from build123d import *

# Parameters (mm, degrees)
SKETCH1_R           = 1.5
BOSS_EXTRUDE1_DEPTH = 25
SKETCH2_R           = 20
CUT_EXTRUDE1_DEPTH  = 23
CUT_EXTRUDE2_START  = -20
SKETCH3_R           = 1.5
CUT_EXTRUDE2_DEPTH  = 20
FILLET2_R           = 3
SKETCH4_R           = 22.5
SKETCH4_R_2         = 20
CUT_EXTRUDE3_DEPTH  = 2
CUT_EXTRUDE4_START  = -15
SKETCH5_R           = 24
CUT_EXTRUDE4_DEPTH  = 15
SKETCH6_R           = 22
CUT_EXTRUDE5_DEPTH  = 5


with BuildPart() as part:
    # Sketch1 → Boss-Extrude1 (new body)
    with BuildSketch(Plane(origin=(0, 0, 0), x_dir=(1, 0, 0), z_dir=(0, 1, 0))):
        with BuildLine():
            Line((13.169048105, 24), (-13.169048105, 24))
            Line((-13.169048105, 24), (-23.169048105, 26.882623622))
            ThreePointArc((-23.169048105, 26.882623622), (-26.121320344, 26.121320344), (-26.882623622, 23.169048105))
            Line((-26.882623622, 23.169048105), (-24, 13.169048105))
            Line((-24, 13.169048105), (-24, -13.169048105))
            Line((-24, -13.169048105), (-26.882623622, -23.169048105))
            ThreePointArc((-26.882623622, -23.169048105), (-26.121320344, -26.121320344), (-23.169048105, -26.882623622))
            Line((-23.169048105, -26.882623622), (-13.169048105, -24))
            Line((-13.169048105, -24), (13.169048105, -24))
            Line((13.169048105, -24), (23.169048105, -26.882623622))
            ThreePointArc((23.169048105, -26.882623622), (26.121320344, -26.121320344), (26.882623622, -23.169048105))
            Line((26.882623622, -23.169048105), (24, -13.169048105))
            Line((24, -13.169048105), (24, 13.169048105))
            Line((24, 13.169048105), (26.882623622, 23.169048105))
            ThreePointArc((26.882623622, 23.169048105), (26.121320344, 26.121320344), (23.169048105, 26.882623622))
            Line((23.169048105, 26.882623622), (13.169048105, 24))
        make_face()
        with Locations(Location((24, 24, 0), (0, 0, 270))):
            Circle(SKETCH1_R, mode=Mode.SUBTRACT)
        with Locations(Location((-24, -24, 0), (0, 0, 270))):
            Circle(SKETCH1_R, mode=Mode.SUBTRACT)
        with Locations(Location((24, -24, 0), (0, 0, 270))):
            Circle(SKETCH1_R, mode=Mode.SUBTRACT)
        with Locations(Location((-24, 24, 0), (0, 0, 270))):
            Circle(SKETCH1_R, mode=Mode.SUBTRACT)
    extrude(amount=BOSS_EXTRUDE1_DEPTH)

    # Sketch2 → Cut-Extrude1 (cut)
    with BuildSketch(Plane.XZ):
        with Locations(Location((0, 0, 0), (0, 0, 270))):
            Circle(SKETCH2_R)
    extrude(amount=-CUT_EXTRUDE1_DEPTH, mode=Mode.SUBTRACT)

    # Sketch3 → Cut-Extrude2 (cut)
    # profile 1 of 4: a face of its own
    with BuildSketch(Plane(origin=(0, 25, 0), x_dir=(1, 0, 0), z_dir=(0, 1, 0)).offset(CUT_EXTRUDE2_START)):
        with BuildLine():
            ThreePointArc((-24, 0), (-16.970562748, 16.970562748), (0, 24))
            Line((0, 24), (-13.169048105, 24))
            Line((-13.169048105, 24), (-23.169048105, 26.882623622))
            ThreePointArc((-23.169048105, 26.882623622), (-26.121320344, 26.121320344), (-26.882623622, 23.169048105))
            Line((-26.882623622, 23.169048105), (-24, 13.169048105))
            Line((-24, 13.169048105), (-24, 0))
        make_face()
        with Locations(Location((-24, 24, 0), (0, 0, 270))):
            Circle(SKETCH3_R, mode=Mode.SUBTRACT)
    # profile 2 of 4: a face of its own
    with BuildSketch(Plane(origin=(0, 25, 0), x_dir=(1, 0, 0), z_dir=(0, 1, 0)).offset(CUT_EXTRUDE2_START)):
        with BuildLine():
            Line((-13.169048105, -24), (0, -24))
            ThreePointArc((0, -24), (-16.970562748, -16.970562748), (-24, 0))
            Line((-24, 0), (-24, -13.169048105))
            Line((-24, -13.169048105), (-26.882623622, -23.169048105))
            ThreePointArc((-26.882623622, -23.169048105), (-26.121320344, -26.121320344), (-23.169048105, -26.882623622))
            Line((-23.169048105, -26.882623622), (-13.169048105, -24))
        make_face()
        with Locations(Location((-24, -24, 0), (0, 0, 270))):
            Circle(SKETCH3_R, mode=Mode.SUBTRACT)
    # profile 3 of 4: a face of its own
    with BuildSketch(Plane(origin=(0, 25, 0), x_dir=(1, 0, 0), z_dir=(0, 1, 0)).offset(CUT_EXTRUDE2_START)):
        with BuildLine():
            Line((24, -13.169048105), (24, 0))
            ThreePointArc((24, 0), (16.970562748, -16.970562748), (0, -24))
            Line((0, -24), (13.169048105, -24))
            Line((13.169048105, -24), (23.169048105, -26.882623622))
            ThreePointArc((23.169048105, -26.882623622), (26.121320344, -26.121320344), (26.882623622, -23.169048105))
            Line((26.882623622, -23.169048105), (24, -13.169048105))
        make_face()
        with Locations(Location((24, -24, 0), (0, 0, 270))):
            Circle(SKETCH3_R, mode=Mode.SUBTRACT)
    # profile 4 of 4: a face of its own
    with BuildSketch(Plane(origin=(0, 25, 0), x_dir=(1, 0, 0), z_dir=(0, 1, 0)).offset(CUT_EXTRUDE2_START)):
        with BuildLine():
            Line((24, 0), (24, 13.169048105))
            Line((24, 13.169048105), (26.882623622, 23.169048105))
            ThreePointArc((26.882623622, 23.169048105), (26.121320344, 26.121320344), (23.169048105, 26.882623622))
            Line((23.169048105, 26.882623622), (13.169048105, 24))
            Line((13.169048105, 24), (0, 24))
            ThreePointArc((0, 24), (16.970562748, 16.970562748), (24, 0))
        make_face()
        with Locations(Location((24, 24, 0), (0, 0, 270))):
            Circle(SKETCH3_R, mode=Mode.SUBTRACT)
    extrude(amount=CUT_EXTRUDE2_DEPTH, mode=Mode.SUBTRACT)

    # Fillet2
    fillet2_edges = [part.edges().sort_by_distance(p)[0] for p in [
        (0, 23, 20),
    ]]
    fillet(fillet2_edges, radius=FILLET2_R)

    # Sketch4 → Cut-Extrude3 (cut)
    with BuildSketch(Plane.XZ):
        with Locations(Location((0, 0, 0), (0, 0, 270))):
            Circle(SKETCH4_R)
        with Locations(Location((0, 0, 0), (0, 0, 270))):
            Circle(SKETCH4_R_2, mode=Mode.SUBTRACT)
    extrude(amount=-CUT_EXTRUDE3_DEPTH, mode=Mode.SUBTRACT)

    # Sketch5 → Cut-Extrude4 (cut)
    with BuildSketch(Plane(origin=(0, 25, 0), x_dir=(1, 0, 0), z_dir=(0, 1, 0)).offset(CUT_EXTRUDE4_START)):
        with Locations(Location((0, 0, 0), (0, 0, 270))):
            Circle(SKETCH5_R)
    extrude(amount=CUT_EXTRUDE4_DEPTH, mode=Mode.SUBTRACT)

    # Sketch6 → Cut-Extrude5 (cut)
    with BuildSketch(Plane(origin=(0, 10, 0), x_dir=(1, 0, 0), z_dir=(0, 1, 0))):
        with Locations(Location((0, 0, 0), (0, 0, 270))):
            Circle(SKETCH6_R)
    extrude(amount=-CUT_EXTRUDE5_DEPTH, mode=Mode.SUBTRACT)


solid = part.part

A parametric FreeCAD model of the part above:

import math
import FreeCAD as App
import Part
import Sketcher

V = App.Vector
Q = App.Units.Quantity


def edges_at(feature, points):
    """Names of the edges that pass closest to the given points."""
    edges = feature.Shape.Edges
    near = lambda p: min(range(len(edges)), key=lambda i: edges[i].distToShape(Part.Vertex(*p))[0])
    return sorted({f"Edge{near(p) + 1}" for p in points})

doc = App.newDocument("Part")
params = doc.addObject("Spreadsheet::Sheet", "Params")
for row, (alias, value) in enumerate([
    ("sketch1_diameter", "3 mm"),
    ("sketch1_radius", "3 mm"),
    ("pad1_length", "25 mm"),
    ("sketch2_diameter", "40 mm"),
    ("pocket1_length", "23 mm"),
    ("sketch3_diameter", "3 mm"),
    ("sketch3_radius", "24 mm"),
    ("sketch3_radius2", "3 mm"),
    ("pocket2_length", "20 mm"),
    ("fillet_radius", "3 mm"),
    ("sketch4_diameter", "45 mm"),
    ("sketch4_diameter2", "40 mm"),
    ("pocket3_length", "2 mm"),
    ("sketch5_diameter", "48 mm"),
    ("pocket4_length", "15 mm"),
    ("sketch6_diameter", "44 mm"),
    ("pocket5_length", "5 mm"),
], start=1):
    params.set(f"A{row}", alias)
    params.set(f"B{row}", "=" + value)
    params.setAlias(f"B{row}", alias)

body = doc.addObject("PartDesign::Body", "Body")

sketch1 = body.newObject("Sketcher::SketchObject", "Sketch")
sketch1.AttachmentSupport = (doc.getObject("XZ_Plane"), [""])
sketch1.MapMode = "FlatFace"
sketch1.addGeometry([
    Part.LineSegment(V(13.169048, -24, 0), V(-13.169048, -24, 0)),
    Part.LineSegment(V(-13.169048, -24, 0), V(-23.169048, -26.882624, 0)),
    Part.ArcOfCircle(Part.Circle(V(-24, -24, 0), V(0, 0, 1), 3), math.radians(163.919719), math.radians(286.080281)),
    Part.LineSegment(V(-26.882624, -23.169048, 0), V(-24, -13.169048, 0)),
    Part.LineSegment(V(-24, -13.169048, 0), V(-24, 13.169048, 0)),
    Part.LineSegment(V(-24, 13.169048, 0), V(-26.882624, 23.169048, 0)),
    Part.ArcOfCircle(Part.Circle(V(-24, 24, 0), V(0, 0, 1), 3), math.radians(73.919719), math.radians(196.080281)),
    Part.LineSegment(V(-23.169048, 26.882624, 0), V(-13.169048, 24, 0)),
    Part.LineSegment(V(-13.169048, 24, 0), V(13.169048, 24, 0)),
    Part.LineSegment(V(13.169048, 24, 0), V(23.169048, 26.882624, 0)),
    Part.ArcOfCircle(Part.Circle(V(24, 24, 0), V(0, 0, 1), 3), math.radians(-16.080281), math.radians(106.080281)),
    Part.LineSegment(V(26.882624, 23.169048, 0), V(24, 13.169048, 0)),
    Part.LineSegment(V(24, 13.169048, 0), V(24, -13.169048, 0)),
    Part.LineSegment(V(24, -13.169048, 0), V(26.882624, -23.169048, 0)),
    Part.ArcOfCircle(Part.Circle(V(24, -24, 0), V(0, 0, 1), 3), math.radians(-106.080281), math.radians(16.080281)),
    Part.LineSegment(V(23.169048, -26.882624, 0), V(13.169048, -24, 0)),
    Part.Circle(V(-24, 24, 0), V(0, 0, 1), 1.5),
    Part.Circle(V(24, 24, 0), V(0, 0, 1), 1.5),
    Part.Circle(V(-24, -24, 0), V(0, 0, 1), 1.5),
    Part.Circle(V(24, -24, 0), V(0, 0, 1), 1.5),
], False)
sketch1.addConstraint([
    Sketcher.Constraint("Coincident", 0, 2, 1, 1),
    Sketcher.Constraint("Tangent", 1, 2, 2, 2),
    Sketcher.Constraint("Tangent", 2, 1, 3, 1),
    Sketcher.Constraint("Coincident", 3, 2, 4, 1),
    Sketcher.Constraint("Coincident", 4, 2, 5, 1),
    Sketcher.Constraint("Tangent", 5, 2, 6, 2),
    Sketcher.Constraint("Tangent", 6, 1, 7, 1),
    Sketcher.Constraint("Coincident", 7, 2, 8, 1),
    Sketcher.Constraint("Coincident", 8, 2, 9, 1),
    Sketcher.Constraint("Tangent", 9, 2, 10, 2),
    Sketcher.Constraint("Tangent", 10, 1, 11, 1),
    Sketcher.Constraint("Coincident", 11, 2, 12, 1),
    Sketcher.Constraint("Coincident", 12, 2, 13, 1),
    Sketcher.Constraint("Tangent", 13, 2, 14, 2),
    Sketcher.Constraint("Tangent", 14, 1, 15, 1),
    Sketcher.Constraint("Coincident", 15, 2, 0, 1),
    Sketcher.Constraint("Horizontal", 0),
    Sketcher.Constraint("Vertical", 4),
    Sketcher.Constraint("Horizontal", 8),
    Sketcher.Constraint("Vertical", 12),
    Sketcher.Constraint("Coincident", 16, 3, 6, 3),
    Sketcher.Constraint("Coincident", 17, 3, 10, 3),
    Sketcher.Constraint("Coincident", 18, 3, 2, 3),
    Sketcher.Constraint("Coincident", 19, 3, 14, 3),
    Sketcher.Constraint("Equal", 2, 6),
    Sketcher.Constraint("Equal", 6, 10),
    Sketcher.Constraint("Equal", 10, 14),
    Sketcher.Constraint("Equal", 16, 17),
    Sketcher.Constraint("Equal", 17, 18),
    Sketcher.Constraint("Equal", 18, 19),
    Sketcher.Constraint("Symmetric", 2, 3, 10, 3, -1, 1),
    Sketcher.Constraint("Symmetric", 6, 3, 14, 3, -1, 1),
    Sketcher.Constraint("Symmetric", 0, 2, 8, 2, -1, 1),
    Sketcher.Constraint("Symmetric", 3, 2, 11, 2, -1, 1),
    Sketcher.Constraint("Symmetric", 6, 3, 10, 3, -2),
    Sketcher.Constraint("Perpendicular", 1, 5),
    Sketcher.Constraint("Perpendicular", 3, 7),
    Sketcher.Constraint("Perpendicular", 9, 13),
    Sketcher.Constraint("Perpendicular", 11, 15),
    Sketcher.Constraint("Horizontal", 19, 3, 0, 2),
    Sketcher.Constraint("Horizontal", 6, 1, 9, 2),
    Sketcher.Constraint("Vertical", 18, 3, 3, 2),
    Sketcher.Constraint("Equal", 8, 4),
    Sketcher.Constraint("Diameter", 16, Q("3 mm")),
    Sketcher.Constraint("Radius", 2, Q("3 mm")),
    Sketcher.Constraint("DistanceX", 2, 3, -1, 1, Q("24 mm")),
    Sketcher.Constraint("DistanceX", 1, 2, 0, 2, Q("10 mm")),
])
sketch1.setExpression("Constraints[43]", "Params.sketch1_diameter")
sketch1.setExpression("Constraints[44]", "Params.sketch1_radius")
pad1 = body.newObject("PartDesign::Pad", "Pad")
pad1.Profile = sketch1
pad1.setExpression("Length", "Params.pad1_length")
pad1.Reversed = True

sketch2 = body.newObject("Sketcher::SketchObject", "Sketch001")
sketch2.AttachmentSupport = (doc.getObject("XZ_Plane"), [""])
sketch2.MapMode = "FlatFace"
sketch2.addGeometry(Part.Circle(V(0, 0, 0), V(0, 0, 1), 20), False)
sketch2.addConstraint([
    Sketcher.Constraint("Coincident", 0, 3, -1, 1),
    Sketcher.Constraint("Diameter", 0, Q("40 mm")),
])
sketch2.setExpression("Constraints[1]", "Params.sketch2_diameter")
pocket1 = body.newObject("PartDesign::Pocket", "Pocket")
pocket1.Profile = sketch2
pocket1.setExpression("Length", "Params.pocket1_length")

sketch3 = body.newObject("Sketcher::SketchObject", "Sketch002")
sketch3.AttachmentSupport = (doc.getObject("XZ_Plane"), [""])
sketch3.MapMode = "FlatFace"
sketch3.AttachmentOffset = App.Placement(V(0, 0, -5), App.Rotation())
sketch3.addGeometry([
    Part.ArcOfCircle(Part.Circle(V(0, 0, 0), V(0, 0, 1), 24), math.radians(-180), math.radians(-90)),
    Part.LineSegment(V(0, -24, 0), V(-13.169048, -24, 0)),
    Part.LineSegment(V(-13.169048, -24, 0), V(-23.169048, -26.882624, 0)),
    Part.ArcOfCircle(Part.Circle(V(-24, -24, 0), V(0, 0, 1), 3), math.radians(163.919719), math.radians(286.080281)),
    Part.LineSegment(V(-26.882624, -23.169048, 0), V(-24, -13.169048, 0)),
    Part.LineSegment(V(-24, -13.169048, 0), V(-24, 0, 0)),
    Part.Circle(V(-24, -24, 0), V(0, 0, 1), 1.5),
    Part.LineSegment(V(-13.169048, 24, 0), V(0, 24, 0)),
    Part.ArcOfCircle(Part.Circle(V(0, 0, 0), V(0, 0, 1), 24), math.radians(90), math.radians(180)),
    Part.LineSegment(V(-24, 0, 0), V(-24, 13.169048, 0)),
    Part.LineSegment(V(-24, 13.169048, 0), V(-26.882624, 23.169048, 0)),
    Part.ArcOfCircle(Part.Circle(V(-24, 24, 0), V(0, 0, 1), 3), math.radians(73.919719), math.radians(196.080281)),
    Part.LineSegment(V(-23.169048, 26.882624, 0), V(-13.169048, 24, 0)),
    Part.Circle(V(-24, 24, 0), V(0, 0, 1), 1.5),
    Part.LineSegment(V(24, 13.169048, 0), V(24, 0, 0)),
    Part.ArcOfCircle(Part.Circle(V(0, 0, 0), V(0, 0, 1), 24), math.radians(0), math.radians(90)),
    Part.LineSegment(V(0, 24, 0), V(13.169048, 24, 0)),
    Part.LineSegment(V(13.169048, 24, 0), V(23.169048, 26.882624, 0)),
    Part.ArcOfCircle(Part.Circle(V(24, 24, 0), V(0, 0, 1), 3), math.radians(-16.080281), math.radians(106.080281)),
    Part.LineSegment(V(26.882624, 23.169048, 0), V(24, 13.169048, 0)),
    Part.Circle(V(24, 24, 0), V(0, 0, 1), 1.5),
    Part.LineSegment(V(24, 0, 0), V(24, -13.169048, 0)),
    Part.LineSegment(V(24, -13.169048, 0), V(26.882624, -23.169048, 0)),
    Part.ArcOfCircle(Part.Circle(V(24, -24, 0), V(0, 0, 1), 3), math.radians(-106.080281), math.radians(16.080281)),
    Part.LineSegment(V(23.169048, -26.882624, 0), V(13.169048, -24, 0)),
    Part.LineSegment(V(13.169048, -24, 0), V(0, -24, 0)),
    Part.ArcOfCircle(Part.Circle(V(0, 0, 0), V(0, 0, 1), 24), math.radians(-90), math.radians(0)),
    Part.Circle(V(24, -24, 0), V(0, 0, 1), 1.5),
], False)
sketch3.addConstraint([
    Sketcher.Constraint("Tangent", 0, 2, 1, 1),
    Sketcher.Constraint("Coincident", 1, 2, 2, 1),
    Sketcher.Constraint("Tangent", 2, 2, 3, 2),
    Sketcher.Constraint("Tangent", 3, 1, 4, 1),
    Sketcher.Constraint("Coincident", 4, 2, 5, 1),
    Sketcher.Constraint("Tangent", 5, 2, 0, 1),
    Sketcher.Constraint("Tangent", 7, 2, 8, 1),
    Sketcher.Constraint("Tangent", 8, 2, 9, 1),
    Sketcher.Constraint("Coincident", 9, 2, 10, 1),
    Sketcher.Constraint("Tangent", 10, 2, 11, 2),
    Sketcher.Constraint("Tangent", 11, 1, 12, 1),
    Sketcher.Constraint("Coincident", 12, 2, 7, 1),
    Sketcher.Constraint("Tangent", 14, 2, 15, 1),
    Sketcher.Constraint("Tangent", 15, 2, 16, 1),
    Sketcher.Constraint("Coincident", 16, 2, 17, 1),
    Sketcher.Constraint("Tangent", 17, 2, 18, 2),
    Sketcher.Constraint("Tangent", 18, 1, 19, 1),
    Sketcher.Constraint("Coincident", 19, 2, 14, 1),
    Sketcher.Constraint("Coincident", 21, 2, 22, 1),
    Sketcher.Constraint("Tangent", 22, 2, 23, 2),
    Sketcher.Constraint("Tangent", 23, 1, 24, 1),
    Sketcher.Constraint("Coincident", 24, 2, 25, 1),
    Sketcher.Constraint("Tangent", 25, 2, 26, 1),
    Sketcher.Constraint("Tangent", 26, 2, 21, 1),
    Sketcher.Constraint("Horizontal", 1),
    Sketcher.Constraint("Vertical", 5),
    Sketcher.Constraint("Horizontal", 7),
    Sketcher.Constraint("Vertical", 9),
    Sketcher.Constraint("Vertical", 14),
    Sketcher.Constraint("Horizontal", 16),
    Sketcher.Constraint("Vertical", 21),
    Sketcher.Constraint("Horizontal", 25),
    Sketcher.Constraint("Coincident", 0, 3, -1, 1),
    Sketcher.Constraint("Coincident", 8, 3, -1, 1),
    Sketcher.Constraint("Coincident", 15, 3, -1, 1),
    Sketcher.Constraint("Coincident", 26, 3, -1, 1),
    Sketcher.Constraint("Coincident", 6, 3, 3, 3),
    Sketcher.Constraint("Coincident", 13, 3, 11, 3),
    Sketcher.Constraint("Coincident", 20, 3, 18, 3),
    Sketcher.Constraint("Coincident", 27, 3, 23, 3),
    Sketcher.Constraint("Equal", 0, 8),
    Sketcher.Constraint("Equal", 3, 11),
    Sketcher.Constraint("Equal", 6, 13),
    Sketcher.Constraint("Equal", 8, 15),
    Sketcher.Constraint("Equal", 11, 18),
    Sketcher.Constraint("Equal", 13, 20),
    Sketcher.Constraint("Equal", 18, 23),
    Sketcher.Constraint("Equal", 15, 26),
    Sketcher.Constraint("Equal", 20, 27),
    Sketcher.Constraint("Symmetric", 3, 3, 18, 3, -1, 1),
    Sketcher.Constraint("Symmetric", 11, 3, 23, 3, -1, 1),
    Sketcher.Constraint("Symmetric", 11, 3, 18, 3, -2),
    Sketcher.Constraint("Perpendicular", 2, 10),
    Sketcher.Constraint("Perpendicular", 4, 12),
    Sketcher.Constraint("Perpendicular", 10, 17),
    Sketcher.Constraint("Perpendicular", 12, 19),
    Sketcher.Constraint("Perpendicular", 17, 22),
    Sketcher.Constraint("Perpendicular", 19, 24),
    Sketcher.Constraint("Horizontal", 27, 3, 0, 2),
    Sketcher.Constraint("Horizontal", 11, 1, 17, 2),
    Sketcher.Constraint("Vertical", 13, 3, 4, 2),
    Sketcher.Constraint("Diameter", 6, Q("3 mm")),
    Sketcher.Constraint("Radius", 0, Q("24 mm")),
    Sketcher.Constraint("Radius", 3, Q("3 mm")),
    Sketcher.Constraint("DistanceX", 2, 2, 1, 2, Q("10 mm")),
])
sketch3.setExpression("Constraints[61]", "Params.sketch3_diameter")
sketch3.setExpression("Constraints[62]", "Params.sketch3_radius")
sketch3.setExpression("Constraints[63]", "Params.sketch3_radius2")
pocket2 = body.newObject("PartDesign::Pocket", "Pocket001")
pocket2.Profile = sketch3
pocket2.setExpression("Length", "Params.pocket2_length")
doc.recompute()

fillet = body.newObject("PartDesign::Fillet", "Fillet")
fillet.Base = (pocket2, edges_at(pocket2, [(0, 23, 20)]))
fillet.setExpression("Radius", "Params.fillet_radius")

sketch4 = body.newObject("Sketcher::SketchObject", "Sketch003")
sketch4.AttachmentSupport = (doc.getObject("XZ_Plane"), [""])
sketch4.MapMode = "FlatFace"
sketch4.addGeometry([
    Part.Circle(V(0, 0, 0), V(0, 0, 1), 22.5),
    Part.Circle(V(0, 0, 0), V(0, 0, 1), 20),
], False)
sketch4.addConstraint([
    Sketcher.Constraint("Coincident", 0, 3, -1, 1),
    Sketcher.Constraint("Coincident", 1, 3, -1, 1),
    Sketcher.Constraint("Diameter", 0, Q("45 mm")),
    Sketcher.Constraint("Diameter", 1, Q("40 mm")),
])
sketch4.setExpression("Constraints[2]", "Params.sketch4_diameter")
sketch4.setExpression("Constraints[3]", "Params.sketch4_diameter2")
pocket3 = body.newObject("PartDesign::Pocket", "Pocket002")
pocket3.Profile = sketch4
pocket3.setExpression("Length", "Params.pocket3_length")

sketch5 = body.newObject("Sketcher::SketchObject", "Sketch004")
sketch5.AttachmentSupport = (doc.getObject("XZ_Plane"), [""])
sketch5.MapMode = "FlatFace"
sketch5.AttachmentOffset = App.Placement(V(0, 0, -10), App.Rotation())
sketch5.addGeometry(Part.Circle(V(0, 0, 0), V(0, 0, 1), 24), False)
sketch5.addConstraint([
    Sketcher.Constraint("Coincident", 0, 3, -1, 1),
    Sketcher.Constraint("Diameter", 0, Q("48 mm")),
])
sketch5.setExpression("Constraints[1]", "Params.sketch5_diameter")
pocket4 = body.newObject("PartDesign::Pocket", "Pocket003")
pocket4.Profile = sketch5
pocket4.setExpression("Length", "Params.pocket4_length")

sketch6 = body.newObject("Sketcher::SketchObject", "Sketch005")
sketch6.AttachmentSupport = (doc.getObject("XZ_Plane"), [""])
sketch6.MapMode = "FlatFace"
sketch6.AttachmentOffset = App.Placement(V(0, 0, -10), App.Rotation())
sketch6.addGeometry(Part.Circle(V(0, 0, 0), V(0, 0, 1), 22), False)
sketch6.addConstraint([
    Sketcher.Constraint("Coincident", 0, 3, -1, 1),
    Sketcher.Constraint("Diameter", 0, Q("44 mm")),
])
sketch6.setExpression("Constraints[1]", "Params.sketch6_diameter")
pocket5 = body.newObject("PartDesign::Pocket", "Pocket004")
pocket5.Profile = sketch6
pocket5.setExpression("Length", "Params.pocket5_length")
pocket5.Reversed = True

doc.recompute()
